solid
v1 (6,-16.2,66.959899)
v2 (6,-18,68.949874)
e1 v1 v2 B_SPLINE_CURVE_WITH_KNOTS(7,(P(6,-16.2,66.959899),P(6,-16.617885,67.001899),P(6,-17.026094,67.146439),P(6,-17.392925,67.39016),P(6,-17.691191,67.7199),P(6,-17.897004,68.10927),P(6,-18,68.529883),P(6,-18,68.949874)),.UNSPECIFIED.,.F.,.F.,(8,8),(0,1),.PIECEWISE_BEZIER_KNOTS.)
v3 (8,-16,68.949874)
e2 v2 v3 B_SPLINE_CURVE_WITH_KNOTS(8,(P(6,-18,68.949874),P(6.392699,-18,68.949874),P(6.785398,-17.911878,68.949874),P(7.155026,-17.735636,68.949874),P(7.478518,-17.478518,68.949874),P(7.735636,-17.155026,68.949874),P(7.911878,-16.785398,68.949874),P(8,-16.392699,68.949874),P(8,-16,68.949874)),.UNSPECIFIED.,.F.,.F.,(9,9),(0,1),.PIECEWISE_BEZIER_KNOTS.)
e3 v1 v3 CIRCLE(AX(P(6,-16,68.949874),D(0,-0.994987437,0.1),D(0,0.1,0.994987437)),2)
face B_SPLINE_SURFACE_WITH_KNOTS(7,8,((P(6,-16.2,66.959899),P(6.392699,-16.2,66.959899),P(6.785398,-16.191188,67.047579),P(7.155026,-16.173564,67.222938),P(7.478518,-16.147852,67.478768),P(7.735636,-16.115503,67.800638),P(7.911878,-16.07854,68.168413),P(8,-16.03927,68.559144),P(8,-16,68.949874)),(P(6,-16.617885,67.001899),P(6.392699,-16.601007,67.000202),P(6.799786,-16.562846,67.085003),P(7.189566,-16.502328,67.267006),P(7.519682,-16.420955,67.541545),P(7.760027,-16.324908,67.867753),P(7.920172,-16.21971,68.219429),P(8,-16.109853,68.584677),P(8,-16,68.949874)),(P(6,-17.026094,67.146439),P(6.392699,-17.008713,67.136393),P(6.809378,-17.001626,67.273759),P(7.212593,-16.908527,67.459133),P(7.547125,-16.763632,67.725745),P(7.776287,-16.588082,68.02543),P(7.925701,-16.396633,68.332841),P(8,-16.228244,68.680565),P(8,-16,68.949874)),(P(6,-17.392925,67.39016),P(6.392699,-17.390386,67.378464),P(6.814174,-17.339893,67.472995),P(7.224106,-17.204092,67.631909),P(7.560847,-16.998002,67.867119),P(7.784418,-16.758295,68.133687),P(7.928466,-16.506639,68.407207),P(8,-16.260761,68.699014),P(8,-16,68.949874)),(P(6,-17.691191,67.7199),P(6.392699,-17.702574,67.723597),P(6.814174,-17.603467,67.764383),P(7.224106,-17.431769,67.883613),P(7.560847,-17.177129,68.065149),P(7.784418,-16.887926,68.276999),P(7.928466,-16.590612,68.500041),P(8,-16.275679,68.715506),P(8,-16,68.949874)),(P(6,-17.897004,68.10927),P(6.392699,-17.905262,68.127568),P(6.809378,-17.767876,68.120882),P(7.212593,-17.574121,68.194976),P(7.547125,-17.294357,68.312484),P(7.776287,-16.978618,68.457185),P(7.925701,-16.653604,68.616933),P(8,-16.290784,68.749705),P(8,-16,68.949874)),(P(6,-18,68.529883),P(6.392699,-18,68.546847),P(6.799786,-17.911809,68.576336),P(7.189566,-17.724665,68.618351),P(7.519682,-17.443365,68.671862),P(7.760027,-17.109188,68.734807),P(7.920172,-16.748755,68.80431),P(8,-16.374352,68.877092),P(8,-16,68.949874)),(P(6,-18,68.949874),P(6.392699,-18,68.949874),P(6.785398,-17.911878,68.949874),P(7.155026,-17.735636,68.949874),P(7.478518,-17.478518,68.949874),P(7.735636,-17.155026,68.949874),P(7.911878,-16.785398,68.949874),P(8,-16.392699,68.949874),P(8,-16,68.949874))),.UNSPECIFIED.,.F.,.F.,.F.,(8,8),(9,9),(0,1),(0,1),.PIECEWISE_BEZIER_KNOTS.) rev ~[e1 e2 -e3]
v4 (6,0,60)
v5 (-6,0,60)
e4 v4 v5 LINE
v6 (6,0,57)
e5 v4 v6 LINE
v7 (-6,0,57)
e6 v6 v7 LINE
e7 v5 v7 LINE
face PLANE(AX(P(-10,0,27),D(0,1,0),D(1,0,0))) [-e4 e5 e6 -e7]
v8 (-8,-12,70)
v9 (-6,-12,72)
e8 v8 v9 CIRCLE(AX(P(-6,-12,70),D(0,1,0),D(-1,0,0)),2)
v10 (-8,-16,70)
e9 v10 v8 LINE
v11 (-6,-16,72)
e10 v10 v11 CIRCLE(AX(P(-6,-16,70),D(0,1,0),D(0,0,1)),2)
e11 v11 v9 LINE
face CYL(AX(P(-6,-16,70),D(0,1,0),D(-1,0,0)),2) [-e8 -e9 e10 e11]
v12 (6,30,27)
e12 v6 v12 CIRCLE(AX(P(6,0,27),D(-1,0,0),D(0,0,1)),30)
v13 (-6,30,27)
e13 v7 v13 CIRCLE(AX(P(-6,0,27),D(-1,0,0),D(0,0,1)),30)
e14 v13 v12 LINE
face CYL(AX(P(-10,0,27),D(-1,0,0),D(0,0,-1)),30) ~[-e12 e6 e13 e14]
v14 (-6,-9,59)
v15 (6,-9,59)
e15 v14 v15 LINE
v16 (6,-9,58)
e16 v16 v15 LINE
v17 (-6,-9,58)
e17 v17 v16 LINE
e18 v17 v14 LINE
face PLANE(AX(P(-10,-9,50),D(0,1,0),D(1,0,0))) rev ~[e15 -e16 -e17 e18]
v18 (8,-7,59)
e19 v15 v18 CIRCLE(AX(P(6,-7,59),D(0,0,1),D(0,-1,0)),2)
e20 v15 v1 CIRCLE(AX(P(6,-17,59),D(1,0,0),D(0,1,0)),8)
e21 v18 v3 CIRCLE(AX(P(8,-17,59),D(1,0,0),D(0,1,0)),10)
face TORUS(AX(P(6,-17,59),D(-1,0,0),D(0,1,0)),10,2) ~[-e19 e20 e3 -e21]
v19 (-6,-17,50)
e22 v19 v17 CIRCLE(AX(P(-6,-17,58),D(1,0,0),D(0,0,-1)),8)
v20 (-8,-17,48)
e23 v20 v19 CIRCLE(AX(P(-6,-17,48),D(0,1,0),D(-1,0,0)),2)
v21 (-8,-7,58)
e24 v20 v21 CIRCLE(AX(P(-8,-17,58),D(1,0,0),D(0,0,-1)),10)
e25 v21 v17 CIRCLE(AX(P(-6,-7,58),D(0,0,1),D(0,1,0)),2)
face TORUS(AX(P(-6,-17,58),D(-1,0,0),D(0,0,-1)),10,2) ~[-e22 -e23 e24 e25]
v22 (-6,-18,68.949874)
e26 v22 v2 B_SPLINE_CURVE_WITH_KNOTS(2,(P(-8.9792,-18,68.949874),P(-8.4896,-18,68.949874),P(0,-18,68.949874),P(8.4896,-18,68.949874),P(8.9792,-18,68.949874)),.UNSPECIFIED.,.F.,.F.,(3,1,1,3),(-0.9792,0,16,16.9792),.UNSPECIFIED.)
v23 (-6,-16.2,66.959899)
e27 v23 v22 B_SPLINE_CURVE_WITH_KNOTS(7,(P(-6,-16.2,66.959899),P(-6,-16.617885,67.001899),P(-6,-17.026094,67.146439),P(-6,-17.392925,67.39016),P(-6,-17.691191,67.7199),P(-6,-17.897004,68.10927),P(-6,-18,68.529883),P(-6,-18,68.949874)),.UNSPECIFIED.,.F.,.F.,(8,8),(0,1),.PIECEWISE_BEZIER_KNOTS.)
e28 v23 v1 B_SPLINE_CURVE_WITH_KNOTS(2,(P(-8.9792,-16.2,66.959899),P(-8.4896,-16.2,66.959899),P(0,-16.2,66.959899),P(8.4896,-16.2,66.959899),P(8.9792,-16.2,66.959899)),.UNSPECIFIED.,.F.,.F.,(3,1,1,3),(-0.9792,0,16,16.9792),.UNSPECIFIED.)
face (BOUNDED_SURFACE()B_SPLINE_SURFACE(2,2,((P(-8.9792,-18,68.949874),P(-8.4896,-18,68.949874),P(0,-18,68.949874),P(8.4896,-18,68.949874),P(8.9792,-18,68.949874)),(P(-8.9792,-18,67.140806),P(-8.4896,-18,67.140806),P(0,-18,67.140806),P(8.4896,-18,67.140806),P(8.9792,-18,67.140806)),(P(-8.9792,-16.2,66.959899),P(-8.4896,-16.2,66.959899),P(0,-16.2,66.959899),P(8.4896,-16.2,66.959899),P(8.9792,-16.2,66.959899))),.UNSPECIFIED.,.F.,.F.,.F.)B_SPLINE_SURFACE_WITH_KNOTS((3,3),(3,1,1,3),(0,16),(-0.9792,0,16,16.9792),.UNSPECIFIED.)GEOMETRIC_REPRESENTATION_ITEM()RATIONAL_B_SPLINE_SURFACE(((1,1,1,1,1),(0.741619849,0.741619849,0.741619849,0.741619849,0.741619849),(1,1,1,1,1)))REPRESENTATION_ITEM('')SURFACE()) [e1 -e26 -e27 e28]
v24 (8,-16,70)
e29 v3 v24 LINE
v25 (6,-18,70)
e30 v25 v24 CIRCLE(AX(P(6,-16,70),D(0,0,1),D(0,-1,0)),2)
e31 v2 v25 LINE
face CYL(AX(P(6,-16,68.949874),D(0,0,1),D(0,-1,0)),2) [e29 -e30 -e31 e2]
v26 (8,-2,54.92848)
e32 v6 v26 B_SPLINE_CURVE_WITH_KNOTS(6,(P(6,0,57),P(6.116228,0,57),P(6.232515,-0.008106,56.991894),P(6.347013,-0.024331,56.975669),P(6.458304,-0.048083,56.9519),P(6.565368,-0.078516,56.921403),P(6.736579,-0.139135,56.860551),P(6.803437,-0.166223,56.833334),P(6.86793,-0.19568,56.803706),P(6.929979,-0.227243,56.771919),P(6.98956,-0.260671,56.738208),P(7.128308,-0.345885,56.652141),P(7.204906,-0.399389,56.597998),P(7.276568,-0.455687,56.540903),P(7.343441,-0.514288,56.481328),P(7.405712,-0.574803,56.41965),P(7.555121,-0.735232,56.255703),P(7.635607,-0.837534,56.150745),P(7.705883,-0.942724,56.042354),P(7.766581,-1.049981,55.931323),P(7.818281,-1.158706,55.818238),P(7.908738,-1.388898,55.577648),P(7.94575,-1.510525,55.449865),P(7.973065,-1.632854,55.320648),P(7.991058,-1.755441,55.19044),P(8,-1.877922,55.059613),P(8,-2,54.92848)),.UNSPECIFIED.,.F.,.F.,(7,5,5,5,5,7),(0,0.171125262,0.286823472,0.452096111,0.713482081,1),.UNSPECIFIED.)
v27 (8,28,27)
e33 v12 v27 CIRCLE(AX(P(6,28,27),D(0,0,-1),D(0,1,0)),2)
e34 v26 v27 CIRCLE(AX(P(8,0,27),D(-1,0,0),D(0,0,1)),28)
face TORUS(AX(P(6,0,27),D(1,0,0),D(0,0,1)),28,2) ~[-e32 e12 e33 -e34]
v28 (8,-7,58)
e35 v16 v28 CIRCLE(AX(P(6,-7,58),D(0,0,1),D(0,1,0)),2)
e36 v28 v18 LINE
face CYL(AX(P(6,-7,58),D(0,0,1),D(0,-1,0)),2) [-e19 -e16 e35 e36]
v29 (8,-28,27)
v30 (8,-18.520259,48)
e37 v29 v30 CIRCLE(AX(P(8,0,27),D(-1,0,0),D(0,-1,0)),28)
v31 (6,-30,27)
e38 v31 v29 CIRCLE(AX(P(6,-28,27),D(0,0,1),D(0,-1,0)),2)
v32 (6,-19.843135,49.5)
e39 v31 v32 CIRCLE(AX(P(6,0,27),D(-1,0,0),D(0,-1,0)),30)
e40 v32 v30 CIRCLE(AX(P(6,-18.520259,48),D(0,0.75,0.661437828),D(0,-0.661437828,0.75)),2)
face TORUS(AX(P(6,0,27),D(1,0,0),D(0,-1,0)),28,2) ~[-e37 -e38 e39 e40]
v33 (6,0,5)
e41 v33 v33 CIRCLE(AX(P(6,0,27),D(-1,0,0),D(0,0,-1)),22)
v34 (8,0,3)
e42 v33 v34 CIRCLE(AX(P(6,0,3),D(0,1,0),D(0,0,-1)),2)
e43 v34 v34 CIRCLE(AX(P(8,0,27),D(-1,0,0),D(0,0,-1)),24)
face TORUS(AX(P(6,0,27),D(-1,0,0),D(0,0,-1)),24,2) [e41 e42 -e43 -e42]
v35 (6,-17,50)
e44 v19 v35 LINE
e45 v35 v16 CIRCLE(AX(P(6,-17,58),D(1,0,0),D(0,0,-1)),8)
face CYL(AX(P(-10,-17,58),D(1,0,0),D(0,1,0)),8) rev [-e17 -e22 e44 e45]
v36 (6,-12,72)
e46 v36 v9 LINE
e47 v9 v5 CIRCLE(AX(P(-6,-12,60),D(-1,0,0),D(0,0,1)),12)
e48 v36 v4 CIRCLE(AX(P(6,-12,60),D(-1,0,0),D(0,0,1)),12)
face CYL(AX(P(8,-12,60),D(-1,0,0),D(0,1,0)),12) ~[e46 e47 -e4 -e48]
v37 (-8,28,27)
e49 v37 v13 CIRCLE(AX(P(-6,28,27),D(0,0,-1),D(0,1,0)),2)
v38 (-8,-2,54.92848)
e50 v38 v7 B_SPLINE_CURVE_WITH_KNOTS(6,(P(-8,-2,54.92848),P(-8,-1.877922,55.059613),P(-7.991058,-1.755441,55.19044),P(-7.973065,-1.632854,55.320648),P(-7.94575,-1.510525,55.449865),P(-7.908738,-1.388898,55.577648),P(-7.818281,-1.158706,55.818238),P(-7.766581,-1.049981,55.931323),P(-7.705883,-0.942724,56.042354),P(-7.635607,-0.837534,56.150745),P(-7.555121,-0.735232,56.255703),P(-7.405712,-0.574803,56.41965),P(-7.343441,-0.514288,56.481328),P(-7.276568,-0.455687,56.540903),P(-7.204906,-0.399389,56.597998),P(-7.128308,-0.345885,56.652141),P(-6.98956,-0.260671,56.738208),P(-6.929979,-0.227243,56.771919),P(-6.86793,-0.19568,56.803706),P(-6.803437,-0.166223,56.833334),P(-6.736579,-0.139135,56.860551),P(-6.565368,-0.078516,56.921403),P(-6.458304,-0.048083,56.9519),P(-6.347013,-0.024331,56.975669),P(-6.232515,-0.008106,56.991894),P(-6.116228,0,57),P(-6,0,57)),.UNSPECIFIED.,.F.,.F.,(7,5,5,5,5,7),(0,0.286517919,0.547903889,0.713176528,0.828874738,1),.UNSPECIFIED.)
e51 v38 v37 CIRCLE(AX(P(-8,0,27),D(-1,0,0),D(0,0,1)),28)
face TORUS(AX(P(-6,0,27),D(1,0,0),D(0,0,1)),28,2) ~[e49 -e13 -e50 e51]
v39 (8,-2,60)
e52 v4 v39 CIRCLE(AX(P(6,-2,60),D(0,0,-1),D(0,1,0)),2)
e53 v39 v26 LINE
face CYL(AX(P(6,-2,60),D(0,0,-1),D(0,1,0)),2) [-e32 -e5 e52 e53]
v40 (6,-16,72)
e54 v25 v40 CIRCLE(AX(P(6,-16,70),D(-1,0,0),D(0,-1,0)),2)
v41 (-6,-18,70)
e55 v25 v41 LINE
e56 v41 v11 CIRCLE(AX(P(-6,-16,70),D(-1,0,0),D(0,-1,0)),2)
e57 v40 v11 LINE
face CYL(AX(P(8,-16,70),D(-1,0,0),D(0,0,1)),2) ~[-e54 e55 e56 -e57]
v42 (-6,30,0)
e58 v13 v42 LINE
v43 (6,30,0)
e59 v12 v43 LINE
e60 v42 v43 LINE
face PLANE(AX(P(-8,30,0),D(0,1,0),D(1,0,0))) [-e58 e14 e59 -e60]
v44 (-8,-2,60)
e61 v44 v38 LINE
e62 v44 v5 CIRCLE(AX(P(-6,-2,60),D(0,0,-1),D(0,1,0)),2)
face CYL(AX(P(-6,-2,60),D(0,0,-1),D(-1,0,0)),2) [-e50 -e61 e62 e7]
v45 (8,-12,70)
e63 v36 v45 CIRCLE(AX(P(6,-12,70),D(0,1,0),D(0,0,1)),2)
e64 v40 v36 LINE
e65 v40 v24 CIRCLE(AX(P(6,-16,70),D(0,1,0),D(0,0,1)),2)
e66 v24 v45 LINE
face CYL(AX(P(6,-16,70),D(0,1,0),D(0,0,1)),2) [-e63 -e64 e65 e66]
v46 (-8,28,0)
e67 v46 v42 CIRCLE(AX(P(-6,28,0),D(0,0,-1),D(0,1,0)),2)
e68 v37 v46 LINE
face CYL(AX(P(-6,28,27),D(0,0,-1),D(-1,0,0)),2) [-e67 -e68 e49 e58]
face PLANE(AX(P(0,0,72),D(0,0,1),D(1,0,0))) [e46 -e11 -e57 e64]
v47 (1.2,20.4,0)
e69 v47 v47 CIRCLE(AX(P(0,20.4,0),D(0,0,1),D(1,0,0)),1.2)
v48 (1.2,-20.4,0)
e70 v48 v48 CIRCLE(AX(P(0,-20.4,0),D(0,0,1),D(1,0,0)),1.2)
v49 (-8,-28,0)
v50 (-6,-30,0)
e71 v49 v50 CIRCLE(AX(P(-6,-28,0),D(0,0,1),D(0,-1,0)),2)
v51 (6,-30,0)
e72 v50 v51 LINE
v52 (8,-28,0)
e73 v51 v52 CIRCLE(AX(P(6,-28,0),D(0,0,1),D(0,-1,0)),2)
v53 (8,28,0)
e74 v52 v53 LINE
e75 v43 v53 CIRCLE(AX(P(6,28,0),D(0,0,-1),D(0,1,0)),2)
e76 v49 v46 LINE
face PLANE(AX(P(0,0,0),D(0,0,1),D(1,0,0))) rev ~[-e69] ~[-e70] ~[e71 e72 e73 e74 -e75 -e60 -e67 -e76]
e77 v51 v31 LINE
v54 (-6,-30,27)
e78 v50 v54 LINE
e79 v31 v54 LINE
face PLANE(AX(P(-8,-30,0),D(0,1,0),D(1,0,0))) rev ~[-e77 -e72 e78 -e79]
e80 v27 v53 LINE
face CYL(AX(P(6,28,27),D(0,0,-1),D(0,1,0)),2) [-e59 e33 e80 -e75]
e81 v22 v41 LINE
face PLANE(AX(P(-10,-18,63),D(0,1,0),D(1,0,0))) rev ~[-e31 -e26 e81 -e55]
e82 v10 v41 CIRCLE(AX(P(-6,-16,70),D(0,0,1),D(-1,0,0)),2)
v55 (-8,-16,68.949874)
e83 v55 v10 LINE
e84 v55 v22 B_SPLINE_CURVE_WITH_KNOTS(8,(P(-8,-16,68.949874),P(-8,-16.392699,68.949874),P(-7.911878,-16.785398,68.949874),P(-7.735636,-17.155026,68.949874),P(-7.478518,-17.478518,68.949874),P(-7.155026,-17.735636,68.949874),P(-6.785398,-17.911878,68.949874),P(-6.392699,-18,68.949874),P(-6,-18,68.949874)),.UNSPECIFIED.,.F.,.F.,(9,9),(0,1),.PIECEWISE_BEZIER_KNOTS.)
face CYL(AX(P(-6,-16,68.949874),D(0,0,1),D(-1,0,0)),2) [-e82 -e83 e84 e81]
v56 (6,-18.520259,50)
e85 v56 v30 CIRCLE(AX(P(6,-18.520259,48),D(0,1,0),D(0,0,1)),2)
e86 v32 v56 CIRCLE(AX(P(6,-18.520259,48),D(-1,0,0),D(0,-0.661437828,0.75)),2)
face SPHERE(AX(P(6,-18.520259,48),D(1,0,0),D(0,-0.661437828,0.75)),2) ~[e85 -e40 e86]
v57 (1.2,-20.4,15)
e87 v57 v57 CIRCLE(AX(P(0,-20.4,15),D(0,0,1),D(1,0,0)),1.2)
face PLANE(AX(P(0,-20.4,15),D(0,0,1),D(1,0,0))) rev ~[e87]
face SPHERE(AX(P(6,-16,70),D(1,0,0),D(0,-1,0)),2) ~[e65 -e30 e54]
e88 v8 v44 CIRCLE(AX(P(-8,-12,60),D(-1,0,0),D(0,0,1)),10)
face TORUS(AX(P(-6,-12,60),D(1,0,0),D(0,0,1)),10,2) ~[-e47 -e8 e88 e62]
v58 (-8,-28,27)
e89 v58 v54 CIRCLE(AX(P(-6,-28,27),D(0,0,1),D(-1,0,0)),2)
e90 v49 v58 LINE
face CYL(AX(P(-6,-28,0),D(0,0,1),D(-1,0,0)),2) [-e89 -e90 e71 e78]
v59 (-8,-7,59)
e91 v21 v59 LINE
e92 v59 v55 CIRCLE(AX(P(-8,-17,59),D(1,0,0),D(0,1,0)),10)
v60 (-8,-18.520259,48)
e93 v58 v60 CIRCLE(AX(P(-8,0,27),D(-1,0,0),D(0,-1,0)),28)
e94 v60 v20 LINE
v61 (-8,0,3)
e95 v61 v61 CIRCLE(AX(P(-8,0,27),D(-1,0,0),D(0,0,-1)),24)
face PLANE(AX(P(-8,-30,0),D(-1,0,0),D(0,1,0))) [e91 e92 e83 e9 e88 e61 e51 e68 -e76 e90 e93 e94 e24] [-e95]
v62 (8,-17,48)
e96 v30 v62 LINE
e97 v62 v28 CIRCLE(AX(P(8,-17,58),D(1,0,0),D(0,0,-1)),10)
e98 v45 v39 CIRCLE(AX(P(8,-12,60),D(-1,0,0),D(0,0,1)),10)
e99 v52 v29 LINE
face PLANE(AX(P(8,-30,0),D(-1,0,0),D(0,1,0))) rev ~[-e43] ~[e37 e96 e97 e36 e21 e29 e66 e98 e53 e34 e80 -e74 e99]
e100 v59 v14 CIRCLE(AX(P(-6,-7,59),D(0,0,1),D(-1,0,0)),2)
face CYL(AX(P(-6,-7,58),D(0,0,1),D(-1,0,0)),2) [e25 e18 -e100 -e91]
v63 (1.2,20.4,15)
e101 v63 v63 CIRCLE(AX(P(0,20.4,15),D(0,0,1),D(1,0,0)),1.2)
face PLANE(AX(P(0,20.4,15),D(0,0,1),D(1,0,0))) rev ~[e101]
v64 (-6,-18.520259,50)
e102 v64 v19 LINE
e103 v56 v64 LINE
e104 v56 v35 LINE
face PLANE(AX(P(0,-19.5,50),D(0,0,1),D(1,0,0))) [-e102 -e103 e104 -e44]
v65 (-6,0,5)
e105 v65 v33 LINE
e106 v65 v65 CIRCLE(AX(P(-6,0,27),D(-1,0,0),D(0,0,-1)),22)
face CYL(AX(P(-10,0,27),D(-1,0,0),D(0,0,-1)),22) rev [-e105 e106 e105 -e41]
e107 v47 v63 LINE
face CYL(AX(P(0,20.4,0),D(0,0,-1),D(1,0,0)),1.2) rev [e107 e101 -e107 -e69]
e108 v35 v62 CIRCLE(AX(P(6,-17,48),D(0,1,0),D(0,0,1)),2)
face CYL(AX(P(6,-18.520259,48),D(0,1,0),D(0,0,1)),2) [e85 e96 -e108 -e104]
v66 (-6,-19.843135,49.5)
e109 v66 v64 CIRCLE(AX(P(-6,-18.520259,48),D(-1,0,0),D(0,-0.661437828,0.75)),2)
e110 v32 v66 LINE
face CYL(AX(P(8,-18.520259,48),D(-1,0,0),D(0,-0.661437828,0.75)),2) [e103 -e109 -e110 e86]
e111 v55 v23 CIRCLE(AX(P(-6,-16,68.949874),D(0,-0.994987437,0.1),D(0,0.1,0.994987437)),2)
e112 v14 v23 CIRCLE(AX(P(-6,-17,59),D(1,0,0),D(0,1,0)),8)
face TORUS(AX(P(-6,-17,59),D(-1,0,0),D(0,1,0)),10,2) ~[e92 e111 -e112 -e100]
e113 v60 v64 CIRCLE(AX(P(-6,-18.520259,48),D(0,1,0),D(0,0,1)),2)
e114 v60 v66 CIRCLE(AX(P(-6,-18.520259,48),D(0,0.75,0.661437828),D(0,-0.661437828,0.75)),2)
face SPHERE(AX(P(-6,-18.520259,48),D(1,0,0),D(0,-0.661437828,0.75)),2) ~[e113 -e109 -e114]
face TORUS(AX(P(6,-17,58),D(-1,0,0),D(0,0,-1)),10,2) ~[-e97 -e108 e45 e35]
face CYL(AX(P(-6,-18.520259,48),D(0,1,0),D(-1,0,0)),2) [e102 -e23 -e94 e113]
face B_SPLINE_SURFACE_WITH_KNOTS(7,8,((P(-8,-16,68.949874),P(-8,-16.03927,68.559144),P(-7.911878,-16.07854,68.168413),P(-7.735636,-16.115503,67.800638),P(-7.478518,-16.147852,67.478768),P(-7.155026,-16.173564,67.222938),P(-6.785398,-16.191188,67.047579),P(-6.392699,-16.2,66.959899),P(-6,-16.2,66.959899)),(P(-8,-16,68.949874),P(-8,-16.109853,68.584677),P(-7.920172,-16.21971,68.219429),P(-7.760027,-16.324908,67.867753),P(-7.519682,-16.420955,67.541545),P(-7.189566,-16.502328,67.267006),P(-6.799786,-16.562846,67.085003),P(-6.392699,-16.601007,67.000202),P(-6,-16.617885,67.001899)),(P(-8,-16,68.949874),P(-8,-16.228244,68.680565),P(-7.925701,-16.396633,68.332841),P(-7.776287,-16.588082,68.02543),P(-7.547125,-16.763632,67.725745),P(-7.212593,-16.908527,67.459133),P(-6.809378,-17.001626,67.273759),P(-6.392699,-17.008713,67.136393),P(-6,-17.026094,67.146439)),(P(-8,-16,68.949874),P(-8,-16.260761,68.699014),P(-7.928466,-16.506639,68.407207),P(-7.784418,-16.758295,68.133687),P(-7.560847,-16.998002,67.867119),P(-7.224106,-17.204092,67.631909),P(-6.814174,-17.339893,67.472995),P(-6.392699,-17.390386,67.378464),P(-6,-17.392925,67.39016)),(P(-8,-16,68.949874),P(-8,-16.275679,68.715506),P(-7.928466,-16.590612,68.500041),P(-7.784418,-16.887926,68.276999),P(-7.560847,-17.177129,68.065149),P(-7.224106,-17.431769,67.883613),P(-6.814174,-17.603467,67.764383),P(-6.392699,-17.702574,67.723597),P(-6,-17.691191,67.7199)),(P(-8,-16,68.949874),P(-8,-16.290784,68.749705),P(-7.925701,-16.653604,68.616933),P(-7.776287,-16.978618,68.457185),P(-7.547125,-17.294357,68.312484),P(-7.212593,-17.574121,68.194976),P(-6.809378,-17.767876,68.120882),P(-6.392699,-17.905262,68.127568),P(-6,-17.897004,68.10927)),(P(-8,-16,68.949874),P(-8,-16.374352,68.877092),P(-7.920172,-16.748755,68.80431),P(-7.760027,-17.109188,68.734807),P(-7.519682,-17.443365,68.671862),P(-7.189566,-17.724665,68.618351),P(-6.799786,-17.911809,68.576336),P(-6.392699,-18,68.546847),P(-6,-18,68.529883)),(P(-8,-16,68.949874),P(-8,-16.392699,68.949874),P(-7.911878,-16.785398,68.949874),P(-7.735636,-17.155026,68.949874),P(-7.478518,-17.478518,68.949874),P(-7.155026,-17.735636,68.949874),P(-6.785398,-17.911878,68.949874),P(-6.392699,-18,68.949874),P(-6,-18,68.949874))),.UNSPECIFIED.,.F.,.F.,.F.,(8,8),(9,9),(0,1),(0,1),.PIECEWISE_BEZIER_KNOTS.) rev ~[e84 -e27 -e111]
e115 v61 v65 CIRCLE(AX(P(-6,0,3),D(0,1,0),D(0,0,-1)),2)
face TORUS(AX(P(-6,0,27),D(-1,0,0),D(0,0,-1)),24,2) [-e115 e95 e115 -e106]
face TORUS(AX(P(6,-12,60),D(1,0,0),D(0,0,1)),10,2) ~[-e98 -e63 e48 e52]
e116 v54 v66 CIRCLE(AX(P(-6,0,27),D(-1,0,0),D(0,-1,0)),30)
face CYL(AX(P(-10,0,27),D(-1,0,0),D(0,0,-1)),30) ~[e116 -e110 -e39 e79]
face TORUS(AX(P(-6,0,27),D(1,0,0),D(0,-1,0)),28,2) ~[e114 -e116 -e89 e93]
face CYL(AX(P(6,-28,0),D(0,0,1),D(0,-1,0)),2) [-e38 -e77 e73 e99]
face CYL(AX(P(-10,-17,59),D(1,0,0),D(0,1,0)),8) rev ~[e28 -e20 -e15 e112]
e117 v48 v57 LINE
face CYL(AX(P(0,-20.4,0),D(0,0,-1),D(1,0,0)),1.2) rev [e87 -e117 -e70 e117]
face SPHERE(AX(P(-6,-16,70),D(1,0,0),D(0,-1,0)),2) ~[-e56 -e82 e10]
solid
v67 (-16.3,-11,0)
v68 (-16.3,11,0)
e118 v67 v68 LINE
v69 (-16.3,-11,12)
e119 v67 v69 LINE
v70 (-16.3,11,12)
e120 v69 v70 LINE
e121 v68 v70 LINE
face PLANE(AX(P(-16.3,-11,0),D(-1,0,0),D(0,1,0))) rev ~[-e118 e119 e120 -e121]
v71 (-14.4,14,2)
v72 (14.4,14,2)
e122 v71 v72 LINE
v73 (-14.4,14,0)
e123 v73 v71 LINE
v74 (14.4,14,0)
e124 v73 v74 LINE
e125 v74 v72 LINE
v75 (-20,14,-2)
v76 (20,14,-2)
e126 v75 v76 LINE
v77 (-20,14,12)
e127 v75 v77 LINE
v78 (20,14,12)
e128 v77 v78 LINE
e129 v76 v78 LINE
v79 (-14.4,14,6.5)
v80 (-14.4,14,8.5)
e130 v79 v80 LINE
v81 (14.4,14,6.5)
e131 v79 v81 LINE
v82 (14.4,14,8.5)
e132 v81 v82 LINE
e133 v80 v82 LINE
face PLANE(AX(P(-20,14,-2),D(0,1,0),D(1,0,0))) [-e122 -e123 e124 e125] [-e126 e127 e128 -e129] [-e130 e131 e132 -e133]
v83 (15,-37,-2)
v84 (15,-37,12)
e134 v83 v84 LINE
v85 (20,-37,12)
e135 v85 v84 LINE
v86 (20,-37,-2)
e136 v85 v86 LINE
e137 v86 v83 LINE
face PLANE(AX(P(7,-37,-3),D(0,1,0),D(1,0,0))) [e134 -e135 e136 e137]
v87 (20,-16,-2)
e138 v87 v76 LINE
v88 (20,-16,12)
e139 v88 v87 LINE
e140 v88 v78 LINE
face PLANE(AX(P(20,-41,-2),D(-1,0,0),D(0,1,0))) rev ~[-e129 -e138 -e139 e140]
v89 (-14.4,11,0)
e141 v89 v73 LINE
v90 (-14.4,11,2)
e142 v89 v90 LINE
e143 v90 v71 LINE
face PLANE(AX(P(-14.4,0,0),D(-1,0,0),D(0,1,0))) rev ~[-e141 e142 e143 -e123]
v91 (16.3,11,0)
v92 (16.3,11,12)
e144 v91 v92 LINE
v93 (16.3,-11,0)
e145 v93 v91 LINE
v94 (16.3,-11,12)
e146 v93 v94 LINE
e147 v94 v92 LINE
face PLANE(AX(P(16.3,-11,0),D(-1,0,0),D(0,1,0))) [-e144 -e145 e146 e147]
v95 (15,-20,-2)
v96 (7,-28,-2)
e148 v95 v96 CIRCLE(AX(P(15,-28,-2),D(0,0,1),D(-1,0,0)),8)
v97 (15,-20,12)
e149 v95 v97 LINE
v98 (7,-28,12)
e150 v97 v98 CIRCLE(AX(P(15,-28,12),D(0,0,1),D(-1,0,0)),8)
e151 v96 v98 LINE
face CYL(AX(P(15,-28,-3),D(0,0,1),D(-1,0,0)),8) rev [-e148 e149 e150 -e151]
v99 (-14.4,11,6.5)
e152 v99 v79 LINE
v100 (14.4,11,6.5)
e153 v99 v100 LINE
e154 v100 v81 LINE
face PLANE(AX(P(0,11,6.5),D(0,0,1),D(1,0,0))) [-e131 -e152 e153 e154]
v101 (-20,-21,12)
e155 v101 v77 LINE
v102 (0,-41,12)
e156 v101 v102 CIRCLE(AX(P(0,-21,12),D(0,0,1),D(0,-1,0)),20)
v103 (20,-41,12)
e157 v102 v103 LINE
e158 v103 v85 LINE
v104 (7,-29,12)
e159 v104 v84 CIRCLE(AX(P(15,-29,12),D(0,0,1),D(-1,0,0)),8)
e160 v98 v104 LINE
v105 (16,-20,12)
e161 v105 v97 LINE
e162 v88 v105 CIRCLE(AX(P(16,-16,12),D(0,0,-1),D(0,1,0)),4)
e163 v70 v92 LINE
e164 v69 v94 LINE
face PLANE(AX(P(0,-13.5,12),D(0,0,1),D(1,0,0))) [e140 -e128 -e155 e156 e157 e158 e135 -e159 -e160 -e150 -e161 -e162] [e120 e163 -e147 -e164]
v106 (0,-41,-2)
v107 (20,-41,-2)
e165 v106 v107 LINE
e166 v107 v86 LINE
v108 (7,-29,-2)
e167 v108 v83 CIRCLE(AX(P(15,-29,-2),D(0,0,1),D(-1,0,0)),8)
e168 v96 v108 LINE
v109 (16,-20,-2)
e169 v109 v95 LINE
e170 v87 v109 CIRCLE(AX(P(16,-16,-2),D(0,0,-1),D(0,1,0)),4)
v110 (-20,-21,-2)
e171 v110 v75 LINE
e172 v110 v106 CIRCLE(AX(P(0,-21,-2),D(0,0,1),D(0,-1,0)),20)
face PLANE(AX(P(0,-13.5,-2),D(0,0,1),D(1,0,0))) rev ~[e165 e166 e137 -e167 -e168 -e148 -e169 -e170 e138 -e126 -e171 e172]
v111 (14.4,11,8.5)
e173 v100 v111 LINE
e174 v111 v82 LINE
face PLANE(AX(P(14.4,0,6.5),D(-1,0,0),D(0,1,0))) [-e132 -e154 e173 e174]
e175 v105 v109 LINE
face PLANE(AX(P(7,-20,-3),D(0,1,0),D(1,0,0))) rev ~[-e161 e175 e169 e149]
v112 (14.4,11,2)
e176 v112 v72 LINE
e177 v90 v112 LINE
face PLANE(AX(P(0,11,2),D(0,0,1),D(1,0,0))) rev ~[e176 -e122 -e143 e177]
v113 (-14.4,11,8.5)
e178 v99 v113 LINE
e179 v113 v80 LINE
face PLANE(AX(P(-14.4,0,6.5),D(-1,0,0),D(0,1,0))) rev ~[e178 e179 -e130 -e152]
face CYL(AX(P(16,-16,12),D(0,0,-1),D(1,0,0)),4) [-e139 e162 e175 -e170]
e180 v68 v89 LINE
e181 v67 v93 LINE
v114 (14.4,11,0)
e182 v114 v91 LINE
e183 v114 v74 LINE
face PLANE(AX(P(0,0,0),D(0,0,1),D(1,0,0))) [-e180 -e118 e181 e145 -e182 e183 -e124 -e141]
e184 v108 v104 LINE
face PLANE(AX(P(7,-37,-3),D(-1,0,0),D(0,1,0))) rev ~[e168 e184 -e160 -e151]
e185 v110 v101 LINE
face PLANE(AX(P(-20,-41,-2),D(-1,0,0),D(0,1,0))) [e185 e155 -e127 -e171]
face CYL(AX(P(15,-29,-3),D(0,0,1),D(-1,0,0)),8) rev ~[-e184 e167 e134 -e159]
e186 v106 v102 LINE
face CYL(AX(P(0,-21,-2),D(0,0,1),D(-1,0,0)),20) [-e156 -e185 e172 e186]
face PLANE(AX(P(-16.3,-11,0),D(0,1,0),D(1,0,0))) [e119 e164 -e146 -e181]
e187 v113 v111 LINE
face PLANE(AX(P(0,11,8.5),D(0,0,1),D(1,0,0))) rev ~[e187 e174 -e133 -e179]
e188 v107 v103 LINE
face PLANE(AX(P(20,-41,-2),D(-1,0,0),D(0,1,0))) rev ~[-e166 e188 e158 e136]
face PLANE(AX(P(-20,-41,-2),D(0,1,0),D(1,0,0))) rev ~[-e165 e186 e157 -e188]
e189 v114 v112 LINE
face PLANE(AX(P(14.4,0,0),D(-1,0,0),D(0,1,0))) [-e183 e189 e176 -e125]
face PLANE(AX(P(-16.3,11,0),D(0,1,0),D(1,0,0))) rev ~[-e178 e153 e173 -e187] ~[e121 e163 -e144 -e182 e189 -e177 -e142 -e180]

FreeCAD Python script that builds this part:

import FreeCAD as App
import Part
import Sketcher


def edges_at(feature, points):
    """Names of the edges that pass closest to the given points."""
    edges = feature.Shape.Edges
    near = lambda p: min(range(len(edges)), key=lambda i: edges[i].distToShape(Part.Vertex(*p))[0])
    return sorted({f"Edge{near(p) + 1}" for p in points})

doc = App.newDocument("Part")
body = doc.addObject("PartDesign::Body", "Body")

# Sketch on XY plane
sketch1 = doc.addObject("Sketcher::SketchObject", "Sketch")
body.addObject(sketch1)
sketch1.AttachmentSupport = (doc.XY_Plane, [""])
sketch1.MapMode = "FlatFace"
sketch1.addGeometry(Part.LineSegment(App.Vector(-14, 22, 0), App.Vector(-14, 0, 0)), False)
sketch1.addGeometry(Part.LineSegment(App.Vector(-14, 0, 0), App.Vector(14, 0, 0)), False)
sketch1.addGeometry(Part.LineSegment(App.Vector(14, 0, 0), App.Vector(14, 22, 0)), False)
sketch1.addGeometry(Part.LineSegment(App.Vector(14, 22, 0), App.Vector(-14, 22, 0)), False)
sketch1.addConstraint(Sketcher.Constraint("Coincident", 0, 2, 1, 1))
sketch1.addConstraint(Sketcher.Constraint("Coincident", 1, 2, 2, 1))
sketch1.addConstraint(Sketcher.Constraint("Coincident", 2, 2, 3, 1))
sketch1.addConstraint(Sketcher.Constraint("Coincident", 3, 2, 0, 1))
sketch1.addConstraint(Sketcher.Constraint("Vertical", 0))
sketch1.addConstraint(Sketcher.Constraint("Horizontal", 1))
sketch1.addConstraint(Sketcher.Constraint("Vertical", 2))
sketch1.addConstraint(Sketcher.Constraint("Horizontal", 3))
sketch1.addConstraint(Sketcher.Constraint("Symmetric", 0, 2, 1, 2, -1, 1))
sketch1.addConstraint(Sketcher.Constraint("DistanceY", 0, 2, 0, 1, 22.0))
sketch1.addConstraint(Sketcher.Constraint("DistanceX", 1, 1, 1, 2, 28.8))
pad1 = doc.addObject("PartDesign::Pad", "Pad")
body.addObject(pad1)
pad1.Profile = sketch1
pad1.Length = 2
body2 = doc.addObject("PartDesign::Body", "Body001")

# Sketch on XY plane
sketch2 = doc.addObject("Sketcher::SketchObject", "Sketch001")
body2.addObject(sketch2)
sketch2.AttachmentSupport = (doc.getObject("XY_Plane001"), [""])
sketch2.MapMode = "FlatFace"
sketch2.AttachmentOffset = App.Placement(App.Vector(0, 0, 6.5), App.Rotation())
sketch2.addGeometry(Part.LineSegment(App.Vector(-14, 22, 0), App.Vector(-14, 0, 0)), False)
sketch2.addGeometry(Part.LineSegment(App.Vector(-14, 0, 0), App.Vector(14, 0, 0)), False)
sketch2.addGeometry(Part.LineSegment(App.Vector(14, 0, 0), App.Vector(14, 22, 0)), False)
sketch2.addGeometry(Part.LineSegment(App.Vector(14, 22, 0), App.Vector(-14, 22, 0)), False)
sketch2.addConstraint(Sketcher.Constraint("Coincident", 0, 2, 1, 1))
sketch2.addConstraint(Sketcher.Constraint("Coincident", 1, 2, 2, 1))
sketch2.addConstraint(Sketcher.Constraint("Coincident", 2, 2, 3, 1))
sketch2.addConstraint(Sketcher.Constraint("Coincident", 3, 2, 0, 1))
sketch2.addConstraint(Sketcher.Constraint("Vertical", 0))
sketch2.addConstraint(Sketcher.Constraint("Horizontal", 1))
sketch2.addConstraint(Sketcher.Constraint("Vertical", 2))
sketch2.addConstraint(Sketcher.Constraint("Horizontal", 3))
sketch2.addConstraint(Sketcher.Constraint("Symmetric", 0, 2, 1, 2, -1, 1))
sketch2.addConstraint(Sketcher.Constraint("DistanceY", 0, 2, 0, 1, 22.0))
sketch2.addConstraint(Sketcher.Constraint("DistanceX", 1, 1, 1, 2, 28.8))
pad2 = doc.addObject("PartDesign::Pad", "Pad001")
body2.addObject(pad2)
pad2.Profile = sketch2
pad2.Length = 2
body3 = doc.addObject("PartDesign::Body", "Body002")

# Sketch on XY plane
sketch3 = doc.addObject("Sketcher::SketchObject", "Sketch002")
body3.addObject(sketch3)
sketch3.AttachmentSupport = (doc.getObject("XY_Plane002"), [""])
sketch3.MapMode = "FlatFace"
sketch3.addGeometry(Part.LineSegment(App.Vector(-16, 11, 0), App.Vector(-16, -11, 0)), False)
sketch3.addGeometry(Part.LineSegment(App.Vector(-16, -11, 0), App.Vector(16, -11, 0)), False)
sketch3.addGeometry(Part.LineSegment(App.Vector(16, -11, 0), App.Vector(16, 11, 0)), False)
sketch3.addGeometry(Part.LineSegment(App.Vector(16, 11, 0), App.Vector(-16, 11, 0)), False)
sketch3.addConstraint(Sketcher.Constraint("Coincident", 0, 2, 1, 1))
sketch3.addConstraint(Sketcher.Constraint("Coincident", 1, 2, 2, 1))
sketch3.addConstraint(Sketcher.Constraint("Coincident", 2, 2, 3, 1))
sketch3.addConstraint(Sketcher.Constraint("Coincident", 3, 2, 0, 1))
sketch3.addConstraint(Sketcher.Constraint("Vertical", 0))
sketch3.addConstraint(Sketcher.Constraint("Horizontal", 1))
sketch3.addConstraint(Sketcher.Constraint("Vertical", 2))
sketch3.addConstraint(Sketcher.Constraint("Horizontal", 3))
sketch3.addConstraint(Sketcher.Constraint("Symmetric", 0, 2, 2, 2, -1, 1))
sketch3.addConstraint(Sketcher.Constraint("DistanceY", 0, 2, 0, 1, 22.0))
sketch3.addConstraint(Sketcher.Constraint("DistanceX", 1, 1, 1, 2, 32.6))
pad3 = doc.addObject("PartDesign::Pad", "Pad002")
body3.addObject(pad3)
pad3.Profile = sketch3
pad3.Length = 12
doc.recompute()

boolean = doc.addObject("PartDesign::Boolean", "Boolean")
body3.addObject(boolean)
boolean.Type = "Fuse"
boolean.addObjects([body])
doc.recompute()

boolean2 = doc.addObject("PartDesign::Boolean", "Boolean001")
body3.addObject(boolean2)
boolean2.Type = "Fuse"
boolean2.addObjects([body2])
body4 = doc.addObject("PartDesign::Body", "Body003")
body4.AllowCompound = True

# Sketch on XY plane
sketch4 = doc.addObject("Sketcher::SketchObject", "Sketch003")
body4.addObject(sketch4)
sketch4.AttachmentSupport = (doc.getObject("XY_Plane003"), [""])
sketch4.MapMode = "FlatFace"
sketch4.AttachmentOffset = App.Placement(App.Vector(0, 0, -3), App.Rotation())
sketch4.addGeometry(Part.LineSegment(App.Vector(7, -20, 0), App.Vector(7, -37, 0)), False)
sketch4.addGeometry(Part.LineSegment(App.Vector(7, -37, 0), App.Vector(27, -37, 0)), False)
sketch4.addGeometry(Part.LineSegment(App.Vector(27, -37, 0), App.Vector(27, -20, 0)), False)
sketch4.addGeometry(Part.LineSegment(App.Vector(27, -20, 0), App.Vector(7, -20, 0)), False)
sketch4.addConstraint(Sketcher.Constraint("Coincident", 0, 2, 1, 1))
sketch4.addConstraint(Sketcher.Constraint("Coincident", 1, 2, 2, 1))
sketch4.addConstraint(Sketcher.Constraint("Coincident", 2, 2, 3, 1))
sketch4.addConstraint(Sketcher.Constraint("Coincident", 3, 2, 0, 1))
sketch4.addConstraint(Sketcher.Constraint("Vertical", 0))
sketch4.addConstraint(Sketcher.Constraint("Horizontal", 1))
sketch4.addConstraint(Sketcher.Constraint("Vertical", 2))
sketch4.addConstraint(Sketcher.Constraint("Horizontal", 3))
sketch4.addConstraint(Sketcher.Constraint("DistanceX", 1, 1, 1, 2, 20.0))
sketch4.addConstraint(Sketcher.Constraint("DistanceY", 0, 2, 0, 1, 17.0))
sketch4.addConstraint(Sketcher.Constraint("DistanceX", -1, 1, 0, 2, 7.0))
sketch4.addConstraint(Sketcher.Constraint("DistanceY", 0, 2, -1, 1, 37.0))
pad4 = doc.addObject("PartDesign::Pad", "Pad003")
body4.addObject(pad4)
pad4.Profile = sketch4
pad4.Length = 20
doc.recompute()

fillet = doc.addObject("PartDesign::Fillet", "Fillet")
body4.addObject(fillet)
fillet.Base = (pad4, edges_at(pad4, [(7, -37, 7), (7, -20, 7)]))
fillet.Radius = 8
doc.recompute()

boolean3 = doc.addObject("PartDesign::Boolean", "Boolean002")
body4.addObject(boolean3)
boolean3.Type = "Fuse"
boolean3.addObjects([body3])
body5 = doc.addObject("PartDesign::Body", "Body004")

# Sketch on XY plane
sketch5 = doc.addObject("Sketcher::SketchObject", "Sketch004")
body5.addObject(sketch5)
sketch5.AttachmentSupport = (doc.getObject("XY_Plane004"), [""])
sketch5.MapMode = "FlatFace"
sketch5.AttachmentOffset = App.Placement(App.Vector(0, 0, -2), App.Rotation())
sketch5.addGeometry(Part.LineSegment(App.Vector(-20, 14, 0), App.Vector(-20, -41, 0)), False)
sketch5.addGeometry(Part.LineSegment(App.Vector(-20, -41, 0), App.Vector(20, -41, 0)), False)
sketch5.addGeometry(Part.LineSegment(App.Vector(20, -41, 0), App.Vector(20, 14, 0)), False)
sketch5.addGeometry(Part.LineSegment(App.Vector(20, 14, 0), App.Vector(-20, 14, 0)), False)
sketch5.addConstraint(Sketcher.Constraint("Coincident", 0, 2, 1, 1))
sketch5.addConstraint(Sketcher.Constraint("Coincident", 1, 2, 2, 1))
sketch5.addConstraint(Sketcher.Constraint("Coincident", 2, 2, 3, 1))
sketch5.addConstraint(Sketcher.Constraint("Coincident", 3, 2, 0, 1))
sketch5.addConstraint(Sketcher.Constraint("Vertical", 0))
sketch5.addConstraint(Sketcher.Constraint("Horizontal", 1))
sketch5.addConstraint(Sketcher.Constraint("Vertical", 2))
sketch5.addConstraint(Sketcher.Constraint("Horizontal", 3))
sketch5.addConstraint(Sketcher.Constraint("DistanceX", 1, 1, 1, 2, 40.0))
sketch5.addConstraint(Sketcher.Constraint("DistanceY", 0, 2, 0, 1, 55.0))
sketch5.addConstraint(Sketcher.Constraint("DistanceX", 0, 2, -1, 1, 20.0))
sketch5.addConstraint(Sketcher.Constraint("DistanceY", 0, 2, -1, 1, 41.0))
pad5 = doc.addObject("PartDesign::Pad", "Pad004")
body5.addObject(pad5)
pad5.Profile = sketch5
pad5.Length = 14
doc.recompute()

fillet2 = doc.addObject("PartDesign::Fillet", "Fillet001")
body5.addObject(fillet2)
fillet2.Base = (pad5, edges_at(pad5, [(-20, -41, 5)]))
fillet2.Radius = 20
doc.recompute()

boolean4 = doc.addObject("PartDesign::Boolean", "Boolean003")
body5.addObject(boolean4)
boolean4.Type = "Cut"
boolean4.addObjects([body4])
doc.recompute()

fillet3 = doc.addObject("PartDesign::Fillet", "Fillet002")
body5.addObject(fillet3)
fillet3.Base = (boolean4, edges_at(boolean4, [(20, -20, 5)]))
fillet3.Radius = 4
body6 = doc.addObject("PartDesign::Body", "Body005")

# Sketch on YZ plane
sketch6 = doc.addObject("Sketcher::SketchObject", "Sketch005")
body6.addObject(sketch6)
sketch6.AttachmentSupport = (doc.getObject("YZ_Plane005"), [""])
sketch6.MapMode = "FlatFace"
sketch6.AttachmentOffset = App.Placement(App.Vector(0, 0, -10), App.Rotation())
sketch6.addGeometry(Part.Circle(App.Vector(0, 27, 0), App.Vector(0, 0, 1), 30), False)
sketch6.addConstraint(Sketcher.Constraint("PointOnObject", 0, 3, -2))
sketch6.addConstraint(Sketcher.Constraint("Diameter", 0, 60.0))
sketch6.addConstraint(Sketcher.Constraint("DistanceY", -1, 1, 0, 3, 27.0))
pad6 = doc.addObject("PartDesign::Pad", "Pad005")
body6.addObject(pad6)
pad6.Profile = sketch6
pad6.Length = 20
body7 = doc.addObject("PartDesign::Body", "Body006")

# Sketch on XY plane
sketch7 = doc.addObject("Sketcher::SketchObject", "Sketch006")
body7.addObject(sketch7)
sketch7.AttachmentSupport = (doc.getObject("XY_Plane006"), [""])
sketch7.MapMode = "FlatFace"
sketch7.AttachmentOffset = App.Placement(App.Vector(0, 0, 27), App.Rotation())
sketch7.addGeometry(Part.LineSegment(App.Vector(-10, 30, 0), App.Vector(-10, 0, 0)), False)
sketch7.addGeometry(Part.LineSegment(App.Vector(-10, 0, 0), App.Vector(10, 0, 0)), False)
sketch7.addGeometry(Part.LineSegment(App.Vector(10, 0, 0), App.Vector(10, 30, 0)), False)
sketch7.addGeometry(Part.LineSegment(App.Vector(10, 30, 0), App.Vector(-10, 30, 0)), False)
sketch7.addConstraint(Sketcher.Constraint("Coincident", 0, 2, 1, 1))
sketch7.addConstraint(Sketcher.Constraint("Coincident", 1, 2, 2, 1))
sketch7.addConstraint(Sketcher.Constraint("Coincident", 2, 2, 3, 1))
sketch7.addConstraint(Sketcher.Constraint("Coincident", 3, 2, 0, 1))
sketch7.addConstraint(Sketcher.Constraint("Vertical", 0))
sketch7.addConstraint(Sketcher.Constraint("Horizontal", 1))
sketch7.addConstraint(Sketcher.Constraint("Vertical", 2))
sketch7.addConstraint(Sketcher.Constraint("Horizontal", 3))
sketch7.addConstraint(Sketcher.Constraint("Symmetric", 0, 2, 1, 2, -1, 1))
sketch7.addConstraint(Sketcher.Constraint("DistanceX", 1, 1, 1, 2, 20.0))
sketch7.addConstraint(Sketcher.Constraint("DistanceY", 0, 2, 0, 1, 30.0))
pad7 = doc.addObject("PartDesign::Pad", "Pad006")
body7.addObject(pad7)
pad7.Profile = sketch7
pad7.Length = 50
doc.recompute()

boolean5 = doc.addObject("PartDesign::Boolean", "Boolean004")
body7.addObject(boolean5)
boolean5.Type = "Cut"
boolean5.addObjects([body6])
body8 = doc.addObject("PartDesign::Body", "Body007")

# Sketch on YZ plane
sketch8 = doc.addObject("Sketcher::SketchObject", "Sketch007")
body8.addObject(sketch8)
sketch8.AttachmentSupport = (doc.getObject("YZ_Plane007"), [""])
sketch8.MapMode = "FlatFace"
sketch8.AttachmentOffset = App.Placement(App.Vector(0, 0, -10), App.Rotation())
sketch8.addGeometry(Part.Circle(App.Vector(0, 27, 0), App.Vector(0, 0, 1), 22), False)
sketch8.addConstraint(Sketcher.Constraint("PointOnObject", 0, 3, -2))
sketch8.addConstraint(Sketcher.Constraint("Diameter", 0, 44.0))
sketch8.addConstraint(Sketcher.Constraint("DistanceY", -1, 1, 0, 3, 27.0))
pad8 = doc.addObject("PartDesign::Pad", "Pad007")
body8.addObject(pad8)
pad8.Profile = sketch8
pad8.Length = 20
body9 = doc.addObject("PartDesign::Body", "Body008")

# Sketch on XY plane
sketch9 = doc.addObject("Sketcher::SketchObject", "Sketch008")
body9.addObject(sketch9)
sketch9.AttachmentSupport = (doc.getObject("XY_Plane008"), [""])
sketch9.MapMode = "FlatFace"
sketch9.addGeometry(Part.Circle(App.Vector(0, -20.4, 0), App.Vector(0, 0, 1), 1.2), False)
sketch9.addConstraint(Sketcher.Constraint("PointOnObject", 0, 3, -2))
sketch9.addConstraint(Sketcher.Constraint("Diameter", 0, 2.4))
sketch9.addConstraint(Sketcher.Constraint("DistanceY", 0, 3, -1, 1, 20.4))
pad9 = doc.addObject("PartDesign::Pad", "Pad008")
body9.addObject(pad9)
pad9.Profile = sketch9
pad9.Length = 15
body10 = doc.addObject("PartDesign::Body", "Body009")

# Sketch on XY plane
sketch10 = doc.addObject("Sketcher::SketchObject", "Sketch009")
body10.addObject(sketch10)
sketch10.AttachmentSupport = (doc.getObject("XY_Plane009"), [""])
sketch10.MapMode = "FlatFace"
sketch10.addGeometry(Part.Circle(App.Vector(0, 20.4, 0), App.Vector(0, 0, 1), 1.2), False)
sketch10.addConstraint(Sketcher.Constraint("PointOnObject", 0, 3, -2))
sketch10.addConstraint(Sketcher.Constraint("Diameter", 0, 2.4))
sketch10.addConstraint(Sketcher.Constraint("DistanceY", -1, 1, 0, 3, 20.4))
pad10 = doc.addObject("PartDesign::Pad", "Pad009")
body10.addObject(pad10)
pad10.Profile = sketch10
pad10.Length = 15
body11 = doc.addObject("PartDesign::Body", "Body010")

# Sketch on XY plane
sketch11 = doc.addObject("Sketcher::SketchObject", "Sketch010")
body11.addObject(sketch11)
sketch11.AttachmentSupport = (doc.getObject("XY_Plane010"), [""])
sketch11.MapMode = "FlatFace"
sketch11.AttachmentOffset = App.Placement(App.Vector(0, 0, 63), App.Rotation())
sketch11.addGeometry(Part.LineSegment(App.Vector(-10, -18, 0), App.Vector(-10, -30, 0)), False)
sketch11.addGeometry(Part.LineSegment(App.Vector(-10, -30, 0), App.Vector(10, -30, 0)), False)
sketch11.addGeometry(Part.LineSegment(App.Vector(10, -30, 0), App.Vector(10, -18, 0)), False)
sketch11.addGeometry(Part.LineSegment(App.Vector(10, -18, 0), App.Vector(-10, -18, 0)), False)
sketch11.addConstraint(Sketcher.Constraint("Coincident", 0, 2, 1, 1))
sketch11.addConstraint(Sketcher.Constraint("Coincident", 1, 2, 2, 1))
sketch11.addConstraint(Sketcher.Constraint("Coincident", 2, 2, 3, 1))
sketch11.addConstraint(Sketcher.Constraint("Coincident", 3, 2, 0, 1))
sketch11.addConstraint(Sketcher.Constraint("Vertical", 0))
sketch11.addConstraint(Sketcher.Constraint("Horizontal", 1))
sketch11.addConstraint(Sketcher.Constraint("Vertical", 2))
sketch11.addConstraint(Sketcher.Constraint("Horizontal", 3))
sketch11.addConstraint(Sketcher.Constraint("DistanceX", 1, 1, 1, 2, 20.0))
sketch11.addConstraint(Sketcher.Constraint("DistanceY", 0, 2, 0, 1, 12.0))
sketch11.addConstraint(Sketcher.Constraint("DistanceX", 0, 2, -1, 1, 10.0))
sketch11.addConstraint(Sketcher.Constraint("DistanceY", 0, 2, -1, 1, 30.0))
pad11 = doc.addObject("PartDesign::Pad", "Pad010")
body11.addObject(pad11)
pad11.Profile = sketch11
pad11.Length = 10
body12 = doc.addObject("PartDesign::Body", "Body011")

# Sketch on XY plane
sketch12 = doc.addObject("Sketcher::SketchObject", "Sketch011")
body12.addObject(sketch12)
sketch12.AttachmentSupport = (doc.getObject("XY_Plane011"), [""])
sketch12.MapMode = "FlatFace"
sketch12.AttachmentOffset = App.Placement(App.Vector(0, 0, 50), App.Rotation())
sketch12.addGeometry(Part.LineSegment(App.Vector(-10, -9, 0), App.Vector(-10, -30, 0)), False)
sketch12.addGeometry(Part.LineSegment(App.Vector(-10, -30, 0), App.Vector(10, -30, 0)), False)
sketch12.addGeometry(Part.LineSegment(App.Vector(10, -30, 0), App.Vector(10, -9, 0)), False)
sketch12.addGeometry(Part.LineSegment(App.Vector(10, -9, 0), App.Vector(-10, -9, 0)), False)
sketch12.addConstraint(Sketcher.Constraint("Coincident", 0, 2, 1, 1))
sketch12.addConstraint(Sketcher.Constraint("Coincident", 1, 2, 2, 1))
sketch12.addConstraint(Sketcher.Constraint("Coincident", 2, 2, 3, 1))
sketch12.addConstraint(Sketcher.Constraint("Coincident", 3, 2, 0, 1))
sketch12.addConstraint(Sketcher.Constraint("Vertical", 0))
sketch12.addConstraint(Sketcher.Constraint("Horizontal", 1))
sketch12.addConstraint(Sketcher.Constraint("Vertical", 2))
sketch12.addConstraint(Sketcher.Constraint("Horizontal", 3))
sketch12.addConstraint(Sketcher.Constraint("DistanceX", 1, 1, 1, 2, 20.0))
sketch12.addConstraint(Sketcher.Constraint("DistanceY", 0, 2, 0, 1, 21.0))
sketch12.addConstraint(Sketcher.Constraint("DistanceX", 0, 2, -1, 1, 10.0))
sketch12.addConstraint(Sketcher.Constraint("DistanceY", 0, 2, -1, 1, 30.0))
pad12 = doc.addObject("PartDesign::Pad", "Pad011")
body12.addObject(pad12)
pad12.Profile = sketch12
pad12.Length = 17
doc.recompute()

fillet4 = doc.addObject("PartDesign::Fillet", "Fillet003")
body12.addObject(fillet4)
fillet4.Base = (pad12, edges_at(pad12, [(0, -9, 50), (0, -9, 67)]))
fillet4.Radius = 8
body13 = doc.addObject("PartDesign::Body", "Body012")

# Sketch on YZ plane
sketch13 = doc.addObject("Sketcher::SketchObject", "Sketch012")
body13.addObject(sketch13)
sketch13.AttachmentSupport = (doc.getObject("YZ_Plane012"), [""])
sketch13.MapMode = "FlatFace"
sketch13.AttachmentOffset = App.Placement(App.Vector(0, 0, -10), App.Rotation())
sketch13.addGeometry(Part.Circle(App.Vector(0, 27, 0), App.Vector(0, 0, 1), 30), False)
sketch13.addConstraint(Sketcher.Constraint("PointOnObject", 0, 3, -2))
sketch13.addConstraint(Sketcher.Constraint("Diameter", 0, 60.0))
sketch13.addConstraint(Sketcher.Constraint("DistanceY", -1, 1, 0, 3, 27.0))
pad13 = doc.addObject("PartDesign::Pad", "Pad012")
body13.addObject(pad13)
pad13.Profile = sketch13
pad13.Length = 20
body14 = doc.addObject("PartDesign::Body", "Body013")
body14.AllowCompound = True

# Sketch on XY plane
sketch14 = doc.addObject("Sketcher::SketchObject", "Sketch013")
body14.addObject(sketch14)
sketch14.AttachmentSupport = (doc.getObject("XY_Plane013"), [""])
sketch14.MapMode = "FlatFace"
sketch14.AttachmentOffset = App.Placement(App.Vector(0, 0, 27), App.Rotation())
sketch14.addGeometry(Part.LineSegment(App.Vector(-10, -15, 0), App.Vector(-10, -35, 0)), False)
sketch14.addGeometry(Part.LineSegment(App.Vector(-10, -35, 0), App.Vector(10, -35, 0)), False)
sketch14.addGeometry(Part.LineSegment(App.Vector(10, -35, 0), App.Vector(10, -15, 0)), False)
sketch14.addGeometry(Part.LineSegment(App.Vector(10, -15, 0), App.Vector(-10, -15, 0)), False)
sketch14.addConstraint(Sketcher.Constraint("Coincident", 0, 2, 1, 1))
sketch14.addConstraint(Sketcher.Constraint("Coincident", 1, 2, 2, 1))
sketch14.addConstraint(Sketcher.Constraint("Coincident", 2, 2, 3, 1))
sketch14.addConstraint(Sketcher.Constraint("Coincident", 3, 2, 0, 1))
sketch14.addConstraint(Sketcher.Constraint("Vertical", 0))
sketch14.addConstraint(Sketcher.Constraint("Horizontal", 1))
sketch14.addConstraint(Sketcher.Constraint("Vertical", 2))
sketch14.addConstraint(Sketcher.Constraint("Horizontal", 3))
sketch14.addConstraint(Sketcher.Constraint("Equal", 3, 0))
sketch14.addConstraint(Sketcher.Constraint("DistanceX", 1, 1, 1, 2, 20.0))
sketch14.addConstraint(Sketcher.Constraint("DistanceX", 0, 2, -1, 1, 10.0))
sketch14.addConstraint(Sketcher.Constraint("DistanceY", 0, 2, -1, 1, 35.0))
pad14 = doc.addObject("PartDesign::Pad", "Pad013")
body14.addObject(pad14)
pad14.Profile = sketch14
pad14.Length = 30
doc.recompute()

boolean6 = doc.addObject("PartDesign::Boolean", "Boolean005")
body14.addObject(boolean6)
boolean6.Type = "Cut"
boolean6.addObjects([body13])
doc.recompute()

boolean7 = doc.addObject("PartDesign::Boolean", "Boolean006")
body14.addObject(boolean7)
boolean7.Type = "Fuse"
boolean7.addObjects([body7])
doc.recompute()

boolean8 = doc.addObject("PartDesign::Boolean", "Boolean007")
body14.addObject(boolean8)
boolean8.Type = "Fuse"
boolean8.addObjects([body8])
doc.recompute()

boolean9 = doc.addObject("PartDesign::Boolean", "Boolean008")
body14.addObject(boolean9)
boolean9.Type = "Fuse"
boolean9.addObjects([body9])
doc.recompute()

boolean10 = doc.addObject("PartDesign::Boolean", "Boolean009")
body14.addObject(boolean10)
boolean10.Type = "Fuse"
boolean10.addObjects([body10])
doc.recompute()

boolean11 = doc.addObject("PartDesign::Boolean", "Boolean010")
body14.addObject(boolean11)
boolean11.Type = "Fuse"
boolean11.addObjects([body11])
doc.recompute()

boolean12 = doc.addObject("PartDesign::Boolean", "Boolean011")
body14.addObject(boolean12)
boolean12.Type = "Fuse"
boolean12.addObjects([body12])
body15 = doc.addObject("PartDesign::Body", "Body014")

# Sketch on XY plane
sketch15 = doc.addObject("Sketcher::SketchObject", "Sketch014")
body15.addObject(sketch15)
sketch15.AttachmentSupport = (doc.getObject("XY_Plane014"), [""])
sketch15.MapMode = "FlatFace"
sketch15.addGeometry(Part.LineSegment(App.Vector(-8, 30, 0), App.Vector(-8, -30, 0)), False)
sketch15.addGeometry(Part.LineSegment(App.Vector(-8, -30, 0), App.Vector(8, -30, 0)), False)
sketch15.addGeometry(Part.LineSegment(App.Vector(8, -30, 0), App.Vector(8, 30, 0)), False)
sketch15.addGeometry(Part.LineSegment(App.Vector(8, 30, 0), App.Vector(-8, 30, 0)), False)
sketch15.addConstraint(Sketcher.Constraint("Coincident", 0, 2, 1, 1))
sketch15.addConstraint(Sketcher.Constraint("Coincident", 1, 2, 2, 1))
sketch15.addConstraint(Sketcher.Constraint("Coincident", 2, 2, 3, 1))
sketch15.addConstraint(Sketcher.Constraint("Coincident", 3, 2, 0, 1))
sketch15.addConstraint(Sketcher.Constraint("Vertical", 0))
sketch15.addConstraint(Sketcher.Constraint("Horizontal", 1))
sketch15.addConstraint(Sketcher.Constraint("Vertical", 2))
sketch15.addConstraint(Sketcher.Constraint("Horizontal", 3))
sketch15.addConstraint(Sketcher.Constraint("Symmetric", 0, 2, 2, 2, -1, 1))
sketch15.addConstraint(Sketcher.Constraint("DistanceX", 1, 1, 1, 2, 16.0))
sketch15.addConstraint(Sketcher.Constraint("DistanceY", 0, 2, 0, 1, 60.0))
pad15 = doc.addObject("PartDesign::Pad", "Pad014")
body15.addObject(pad15)
pad15.Profile = sketch15
pad15.Length = 72
doc.recompute()

boolean13 = doc.addObject("PartDesign::Boolean", "Boolean012")
body15.addObject(boolean13)
boolean13.Type = "Cut"
boolean13.addObjects([body14])
doc.recompute()

fillet5 = doc.addObject("PartDesign::Fillet", "Fillet004")
body15.addObject(fillet5)
fillet5.Base = (boolean13, edges_at(boolean13, [(0, 0, 72)]))
fillet5.Radius = 12
doc.recompute()

fillet6 = doc.addObject("PartDesign::Fillet", "Fillet005")
body15.addObject(fillet6)
fillet6.Base = (fillet5, edges_at(fillet5, [(0, -18, 72), (0, -18, 67), (0, -19.261, 50)]))
fillet6.Radius = 2
doc.recompute()

fillet7 = doc.addObject("PartDesign::Fillet", "Fillet006")
body15.addObject(fillet7)
fillet7.Base = (fillet6, edges_at(fillet6, [
    (-8, -27.343, 39.343),
    (-8, 21.213, 48.213),
    (8, 21.213, 48.213),
    (8, -27.343, 39.343),
]))
fillet7.Radius = 2
doc.recompute()

fillet8 = doc.addObject("PartDesign::Fillet", "Fillet007")
body15.addObject(fillet8)
fillet8.Base = (fillet7, edges_at(fillet7, [(-8, 0, 49), (8, 0, 49)]))
fillet8.Radius = 2

doc.recompute()
